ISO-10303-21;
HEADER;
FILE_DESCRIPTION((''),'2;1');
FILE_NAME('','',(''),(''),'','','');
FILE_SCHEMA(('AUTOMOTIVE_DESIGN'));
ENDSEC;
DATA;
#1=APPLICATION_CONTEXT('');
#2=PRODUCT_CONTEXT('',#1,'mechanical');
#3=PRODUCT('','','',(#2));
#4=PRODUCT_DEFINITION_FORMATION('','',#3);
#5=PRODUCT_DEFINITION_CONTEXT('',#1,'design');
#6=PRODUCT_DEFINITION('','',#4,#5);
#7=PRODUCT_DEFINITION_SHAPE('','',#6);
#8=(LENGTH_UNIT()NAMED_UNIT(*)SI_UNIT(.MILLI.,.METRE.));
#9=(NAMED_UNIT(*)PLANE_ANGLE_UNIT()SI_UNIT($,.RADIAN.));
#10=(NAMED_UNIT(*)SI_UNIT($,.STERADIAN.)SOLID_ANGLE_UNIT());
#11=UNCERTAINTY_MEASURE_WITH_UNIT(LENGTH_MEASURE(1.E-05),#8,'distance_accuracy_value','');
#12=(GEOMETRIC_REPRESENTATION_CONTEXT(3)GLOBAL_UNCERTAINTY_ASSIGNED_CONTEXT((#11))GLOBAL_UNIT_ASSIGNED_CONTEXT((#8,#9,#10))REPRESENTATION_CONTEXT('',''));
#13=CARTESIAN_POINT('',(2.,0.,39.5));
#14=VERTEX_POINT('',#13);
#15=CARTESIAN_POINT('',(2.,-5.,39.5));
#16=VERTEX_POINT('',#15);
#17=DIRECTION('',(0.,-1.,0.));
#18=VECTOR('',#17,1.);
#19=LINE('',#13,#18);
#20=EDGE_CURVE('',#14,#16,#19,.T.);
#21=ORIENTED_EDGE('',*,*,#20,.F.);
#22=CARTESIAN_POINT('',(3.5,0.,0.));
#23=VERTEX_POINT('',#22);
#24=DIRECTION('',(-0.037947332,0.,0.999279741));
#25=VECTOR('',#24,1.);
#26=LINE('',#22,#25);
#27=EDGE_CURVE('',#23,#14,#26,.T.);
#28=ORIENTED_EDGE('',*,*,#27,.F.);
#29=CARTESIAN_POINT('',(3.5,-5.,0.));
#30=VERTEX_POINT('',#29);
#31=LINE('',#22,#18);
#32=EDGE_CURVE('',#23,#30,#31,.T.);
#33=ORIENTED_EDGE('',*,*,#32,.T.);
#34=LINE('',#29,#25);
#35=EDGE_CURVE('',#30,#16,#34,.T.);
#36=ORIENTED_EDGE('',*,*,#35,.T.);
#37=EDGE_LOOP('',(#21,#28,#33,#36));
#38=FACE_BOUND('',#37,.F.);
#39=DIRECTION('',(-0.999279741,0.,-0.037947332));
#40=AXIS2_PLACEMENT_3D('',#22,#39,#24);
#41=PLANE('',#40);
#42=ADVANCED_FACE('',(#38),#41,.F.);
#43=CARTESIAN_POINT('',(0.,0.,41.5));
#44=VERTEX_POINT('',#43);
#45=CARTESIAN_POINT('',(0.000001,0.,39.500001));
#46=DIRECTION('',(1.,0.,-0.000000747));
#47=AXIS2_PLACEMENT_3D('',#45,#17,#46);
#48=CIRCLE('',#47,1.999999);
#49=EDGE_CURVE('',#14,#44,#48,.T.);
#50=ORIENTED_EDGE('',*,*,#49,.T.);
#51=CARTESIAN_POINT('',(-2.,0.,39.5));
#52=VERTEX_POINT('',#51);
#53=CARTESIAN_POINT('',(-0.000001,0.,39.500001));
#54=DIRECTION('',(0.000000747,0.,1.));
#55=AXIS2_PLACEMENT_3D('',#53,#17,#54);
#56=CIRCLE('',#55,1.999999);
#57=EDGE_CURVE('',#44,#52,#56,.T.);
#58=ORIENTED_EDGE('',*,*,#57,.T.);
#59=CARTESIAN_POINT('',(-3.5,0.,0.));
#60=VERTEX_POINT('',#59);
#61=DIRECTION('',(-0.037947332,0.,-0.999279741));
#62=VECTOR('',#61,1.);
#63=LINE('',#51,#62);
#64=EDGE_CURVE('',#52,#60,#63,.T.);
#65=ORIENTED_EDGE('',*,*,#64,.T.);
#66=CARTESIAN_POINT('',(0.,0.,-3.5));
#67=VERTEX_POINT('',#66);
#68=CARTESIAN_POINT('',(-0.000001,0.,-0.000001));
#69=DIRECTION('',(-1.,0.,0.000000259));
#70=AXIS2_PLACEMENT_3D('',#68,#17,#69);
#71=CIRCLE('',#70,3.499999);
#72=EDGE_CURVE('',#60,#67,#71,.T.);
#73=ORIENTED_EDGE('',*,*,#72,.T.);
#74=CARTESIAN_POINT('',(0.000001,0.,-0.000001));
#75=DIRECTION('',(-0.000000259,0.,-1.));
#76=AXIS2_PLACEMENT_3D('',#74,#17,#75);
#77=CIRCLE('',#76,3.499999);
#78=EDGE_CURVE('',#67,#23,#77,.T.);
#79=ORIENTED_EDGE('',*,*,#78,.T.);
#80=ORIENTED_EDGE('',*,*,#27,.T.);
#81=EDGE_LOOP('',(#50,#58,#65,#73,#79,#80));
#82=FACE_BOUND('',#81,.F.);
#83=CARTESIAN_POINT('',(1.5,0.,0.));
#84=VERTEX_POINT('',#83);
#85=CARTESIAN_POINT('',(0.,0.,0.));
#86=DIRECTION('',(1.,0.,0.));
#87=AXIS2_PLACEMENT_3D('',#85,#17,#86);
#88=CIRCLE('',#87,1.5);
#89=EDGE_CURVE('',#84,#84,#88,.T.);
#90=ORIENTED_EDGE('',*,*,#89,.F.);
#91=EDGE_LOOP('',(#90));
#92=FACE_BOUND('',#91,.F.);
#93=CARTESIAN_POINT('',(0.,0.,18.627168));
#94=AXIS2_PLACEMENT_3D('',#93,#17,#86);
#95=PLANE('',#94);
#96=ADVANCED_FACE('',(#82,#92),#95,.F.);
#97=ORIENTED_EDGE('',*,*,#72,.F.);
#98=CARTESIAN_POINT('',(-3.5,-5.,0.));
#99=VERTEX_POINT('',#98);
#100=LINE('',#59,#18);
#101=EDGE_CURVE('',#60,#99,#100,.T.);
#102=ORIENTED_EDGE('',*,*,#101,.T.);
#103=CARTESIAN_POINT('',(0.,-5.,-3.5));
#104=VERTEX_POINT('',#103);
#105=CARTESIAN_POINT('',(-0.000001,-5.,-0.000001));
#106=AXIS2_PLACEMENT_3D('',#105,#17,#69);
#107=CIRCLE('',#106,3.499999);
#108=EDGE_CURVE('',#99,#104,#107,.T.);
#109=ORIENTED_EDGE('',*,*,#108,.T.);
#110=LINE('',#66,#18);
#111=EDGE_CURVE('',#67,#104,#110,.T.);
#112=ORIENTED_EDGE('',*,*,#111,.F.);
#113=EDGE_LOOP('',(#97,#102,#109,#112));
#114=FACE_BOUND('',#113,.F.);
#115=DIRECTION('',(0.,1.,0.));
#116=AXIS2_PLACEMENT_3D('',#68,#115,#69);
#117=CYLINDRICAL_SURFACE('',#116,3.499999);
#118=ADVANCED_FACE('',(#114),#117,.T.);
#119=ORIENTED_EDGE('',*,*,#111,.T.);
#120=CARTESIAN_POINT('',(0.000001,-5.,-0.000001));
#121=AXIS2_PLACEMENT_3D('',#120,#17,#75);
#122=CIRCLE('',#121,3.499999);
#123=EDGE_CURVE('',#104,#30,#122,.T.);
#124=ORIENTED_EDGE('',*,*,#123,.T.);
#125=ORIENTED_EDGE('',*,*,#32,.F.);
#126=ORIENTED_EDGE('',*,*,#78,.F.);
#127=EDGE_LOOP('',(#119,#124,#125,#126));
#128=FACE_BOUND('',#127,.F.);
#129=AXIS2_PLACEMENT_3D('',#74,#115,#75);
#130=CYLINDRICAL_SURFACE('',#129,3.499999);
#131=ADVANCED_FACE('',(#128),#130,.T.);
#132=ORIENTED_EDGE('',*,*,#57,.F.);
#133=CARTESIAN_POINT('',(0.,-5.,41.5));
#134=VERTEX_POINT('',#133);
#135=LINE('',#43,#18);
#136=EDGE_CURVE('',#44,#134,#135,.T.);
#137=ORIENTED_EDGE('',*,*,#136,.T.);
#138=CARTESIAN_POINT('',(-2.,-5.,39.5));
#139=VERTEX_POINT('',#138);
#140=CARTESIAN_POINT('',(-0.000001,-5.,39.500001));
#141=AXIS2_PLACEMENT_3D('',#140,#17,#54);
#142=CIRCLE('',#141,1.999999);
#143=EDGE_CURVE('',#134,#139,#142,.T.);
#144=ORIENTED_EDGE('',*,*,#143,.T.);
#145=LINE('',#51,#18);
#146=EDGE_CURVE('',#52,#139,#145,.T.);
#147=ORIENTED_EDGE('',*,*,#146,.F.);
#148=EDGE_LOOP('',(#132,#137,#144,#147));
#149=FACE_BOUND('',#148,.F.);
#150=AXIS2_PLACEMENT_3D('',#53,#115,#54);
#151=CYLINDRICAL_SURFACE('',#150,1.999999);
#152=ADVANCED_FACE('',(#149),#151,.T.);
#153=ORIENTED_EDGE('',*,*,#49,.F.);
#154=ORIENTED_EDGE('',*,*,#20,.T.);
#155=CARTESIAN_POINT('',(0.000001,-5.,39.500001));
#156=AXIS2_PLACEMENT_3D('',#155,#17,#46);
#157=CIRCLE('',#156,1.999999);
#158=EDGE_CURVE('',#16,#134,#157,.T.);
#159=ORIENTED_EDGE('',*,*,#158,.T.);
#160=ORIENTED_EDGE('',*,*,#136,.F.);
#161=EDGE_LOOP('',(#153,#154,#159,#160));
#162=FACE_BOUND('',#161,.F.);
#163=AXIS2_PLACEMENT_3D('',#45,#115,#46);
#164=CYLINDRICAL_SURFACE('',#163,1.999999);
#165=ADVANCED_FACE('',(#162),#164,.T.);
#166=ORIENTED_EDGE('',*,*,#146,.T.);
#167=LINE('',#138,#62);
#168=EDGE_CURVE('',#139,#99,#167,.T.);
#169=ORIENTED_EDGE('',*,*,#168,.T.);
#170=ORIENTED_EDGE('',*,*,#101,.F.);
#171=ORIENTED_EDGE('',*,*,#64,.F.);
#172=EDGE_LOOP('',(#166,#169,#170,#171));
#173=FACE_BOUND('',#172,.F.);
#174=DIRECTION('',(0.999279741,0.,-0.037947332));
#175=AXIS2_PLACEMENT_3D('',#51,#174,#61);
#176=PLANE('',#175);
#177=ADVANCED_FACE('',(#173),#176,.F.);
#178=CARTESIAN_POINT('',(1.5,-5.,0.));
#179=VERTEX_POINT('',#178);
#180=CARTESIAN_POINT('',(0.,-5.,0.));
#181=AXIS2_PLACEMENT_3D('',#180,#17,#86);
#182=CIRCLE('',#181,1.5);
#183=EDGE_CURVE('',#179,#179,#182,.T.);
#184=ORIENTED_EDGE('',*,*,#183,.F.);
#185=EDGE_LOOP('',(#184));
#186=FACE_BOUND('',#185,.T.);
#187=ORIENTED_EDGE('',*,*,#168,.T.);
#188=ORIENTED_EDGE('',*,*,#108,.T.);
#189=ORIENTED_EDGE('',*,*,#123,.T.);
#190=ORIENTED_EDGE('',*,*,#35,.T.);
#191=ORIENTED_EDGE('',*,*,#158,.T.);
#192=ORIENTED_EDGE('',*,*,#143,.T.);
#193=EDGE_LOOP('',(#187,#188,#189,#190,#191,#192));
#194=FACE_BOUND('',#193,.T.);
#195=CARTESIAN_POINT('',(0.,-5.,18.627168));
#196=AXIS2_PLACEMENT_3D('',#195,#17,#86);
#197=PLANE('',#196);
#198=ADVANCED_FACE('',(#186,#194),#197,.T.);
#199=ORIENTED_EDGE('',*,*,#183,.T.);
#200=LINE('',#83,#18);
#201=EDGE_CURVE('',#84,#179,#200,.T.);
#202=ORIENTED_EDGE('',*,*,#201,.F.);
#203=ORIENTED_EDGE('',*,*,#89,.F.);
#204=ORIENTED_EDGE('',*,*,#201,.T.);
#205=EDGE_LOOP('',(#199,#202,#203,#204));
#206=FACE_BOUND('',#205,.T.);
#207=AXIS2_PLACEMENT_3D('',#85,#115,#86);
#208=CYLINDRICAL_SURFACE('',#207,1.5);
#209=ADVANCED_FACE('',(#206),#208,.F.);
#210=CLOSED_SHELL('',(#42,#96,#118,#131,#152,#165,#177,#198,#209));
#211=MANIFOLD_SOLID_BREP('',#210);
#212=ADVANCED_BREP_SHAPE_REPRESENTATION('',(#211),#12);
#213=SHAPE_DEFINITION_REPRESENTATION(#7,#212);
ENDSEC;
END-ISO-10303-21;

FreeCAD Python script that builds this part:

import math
import FreeCAD as App
import Part
import Sketcher

V = App.Vector
Q = App.Units.Quantity

doc = App.newDocument("Part")
params = doc.addObject("Spreadsheet::Sheet", "Params")
for row, (alias, value) in enumerate([
    ("sketch1_diameter", "3 mm"),
    ("sketch1_radius", "1.999999 mm"),
    ("sketch1_radius2", "3.499999 mm"),
    ("pad1_length", "5 mm"),
], start=1):
    params.set(f"A{row}", alias)
    params.set(f"B{row}", "=" + value)
    params.setAlias(f"B{row}", alias)

body = doc.addObject("PartDesign::Body", "Body")

# Sketch on XZ plane
sketch1 = body.newObject("Sketcher::SketchObject", "Sketch")
sketch1.AttachmentSupport = (doc.getObject("XZ_Plane"), [""])
sketch1.MapMode = "FlatFace"
sketch1.addGeometry(Part.LineSegment(V(-2, 39.5, 0), V(-3.5, 0, 0)), False)
sketch1.addGeometry(Part.ArcOfCircle(Part.Circle(V(-0.000001, -0.000001, 0), V(0, 0, 1), 3.499999), math.radians(179.999985), math.radians(270.000015)), False)
sketch1.addGeometry(Part.ArcOfCircle(Part.Circle(V(0.000001, -0.000001, 0), V(0, 0, 1), 3.499999), math.radians(-90.000015), math.radians(0.000015)), False)
sketch1.addGeometry(Part.LineSegment(V(3.5, 0, 0), V(2, 39.5, 0)), False)
sketch1.addGeometry(Part.ArcOfCircle(Part.Circle(V(0.000001, 39.500001, 0), V(0, 0, 1), 1.999999), math.radians(-0.000043), math.radians(90.000043)), False)
sketch1.addGeometry(Part.ArcOfCircle(Part.Circle(V(-0.000001, 39.500001, 0), V(0, 0, 1), 1.999999), math.radians(89.999957), math.radians(180.000043)), False)
sketch1.addGeometry(Part.Circle(V(0, 0, 0), V(0, 0, 1), 1.5), False)
sketch1.addConstraint(Sketcher.Constraint("Coincident", 0, 2, 1, 1))
sketch1.addConstraint(Sketcher.Constraint("Tangent", 1, 2, 2, 1))
sketch1.addConstraint(Sketcher.Constraint("Coincident", 2, 2, 3, 1))
sketch1.addConstraint(Sketcher.Constraint("Coincident", 3, 2, 4, 1))
sketch1.addConstraint(Sketcher.Constraint("Tangent", 4, 2, 5, 1))
sketch1.addConstraint(Sketcher.Constraint("Coincident", 5, 2, 0, 1))
sketch1.addConstraint(Sketcher.Constraint("Coincident", 1, 3, -1, 1))
sketch1.addConstraint(Sketcher.Constraint("Coincident", 6, 3, -1, 1))
sketch1.addConstraint(Sketcher.Constraint("Equal", 1, 2))
sketch1.addConstraint(Sketcher.Constraint("Equal", 4, 5))
sketch1.addConstraint(Sketcher.Constraint("Symmetric", 3, 2, 5, 2, -2))
sketch1.addConstraint(Sketcher.Constraint("PointOnObject", 0, 2, -1))
sketch1.addConstraint(Sketcher.Constraint("PointOnObject", 1, 2, -2))
sketch1.addConstraint(Sketcher.Constraint("PointOnObject", 2, 2, -1))
sketch1.addConstraint(Sketcher.Constraint("PointOnObject", 4, 2, -2))
sketch1.addConstraint(Sketcher.Constraint("Horizontal", 5, 3, 3, 2))
sketch1.addConstraint(Sketcher.Constraint("Diameter", 6, Q("3 mm")))
sketch1.addConstraint(Sketcher.Constraint("Radius", 4, Q("1.999999 mm")))
sketch1.addConstraint(Sketcher.Constraint("Radius", 1, Q("3.499999 mm")))
sketch1.addConstraint(Sketcher.Constraint("DistanceY", 1, 2, 4, 3, Q("43.000001 mm")))
sketch1.setExpression("Constraints[16]", "Params.sketch1_diameter")
sketch1.setExpression("Constraints[17]", "Params.sketch1_radius")
sketch1.setExpression("Constraints[18]", "Params.sketch1_radius2")
pad1 = body.newObject("PartDesign::Pad", "Pad")
pad1.Profile = sketch1
pad1.setExpression("Length", "Params.pad1_length")

doc.recompute()
